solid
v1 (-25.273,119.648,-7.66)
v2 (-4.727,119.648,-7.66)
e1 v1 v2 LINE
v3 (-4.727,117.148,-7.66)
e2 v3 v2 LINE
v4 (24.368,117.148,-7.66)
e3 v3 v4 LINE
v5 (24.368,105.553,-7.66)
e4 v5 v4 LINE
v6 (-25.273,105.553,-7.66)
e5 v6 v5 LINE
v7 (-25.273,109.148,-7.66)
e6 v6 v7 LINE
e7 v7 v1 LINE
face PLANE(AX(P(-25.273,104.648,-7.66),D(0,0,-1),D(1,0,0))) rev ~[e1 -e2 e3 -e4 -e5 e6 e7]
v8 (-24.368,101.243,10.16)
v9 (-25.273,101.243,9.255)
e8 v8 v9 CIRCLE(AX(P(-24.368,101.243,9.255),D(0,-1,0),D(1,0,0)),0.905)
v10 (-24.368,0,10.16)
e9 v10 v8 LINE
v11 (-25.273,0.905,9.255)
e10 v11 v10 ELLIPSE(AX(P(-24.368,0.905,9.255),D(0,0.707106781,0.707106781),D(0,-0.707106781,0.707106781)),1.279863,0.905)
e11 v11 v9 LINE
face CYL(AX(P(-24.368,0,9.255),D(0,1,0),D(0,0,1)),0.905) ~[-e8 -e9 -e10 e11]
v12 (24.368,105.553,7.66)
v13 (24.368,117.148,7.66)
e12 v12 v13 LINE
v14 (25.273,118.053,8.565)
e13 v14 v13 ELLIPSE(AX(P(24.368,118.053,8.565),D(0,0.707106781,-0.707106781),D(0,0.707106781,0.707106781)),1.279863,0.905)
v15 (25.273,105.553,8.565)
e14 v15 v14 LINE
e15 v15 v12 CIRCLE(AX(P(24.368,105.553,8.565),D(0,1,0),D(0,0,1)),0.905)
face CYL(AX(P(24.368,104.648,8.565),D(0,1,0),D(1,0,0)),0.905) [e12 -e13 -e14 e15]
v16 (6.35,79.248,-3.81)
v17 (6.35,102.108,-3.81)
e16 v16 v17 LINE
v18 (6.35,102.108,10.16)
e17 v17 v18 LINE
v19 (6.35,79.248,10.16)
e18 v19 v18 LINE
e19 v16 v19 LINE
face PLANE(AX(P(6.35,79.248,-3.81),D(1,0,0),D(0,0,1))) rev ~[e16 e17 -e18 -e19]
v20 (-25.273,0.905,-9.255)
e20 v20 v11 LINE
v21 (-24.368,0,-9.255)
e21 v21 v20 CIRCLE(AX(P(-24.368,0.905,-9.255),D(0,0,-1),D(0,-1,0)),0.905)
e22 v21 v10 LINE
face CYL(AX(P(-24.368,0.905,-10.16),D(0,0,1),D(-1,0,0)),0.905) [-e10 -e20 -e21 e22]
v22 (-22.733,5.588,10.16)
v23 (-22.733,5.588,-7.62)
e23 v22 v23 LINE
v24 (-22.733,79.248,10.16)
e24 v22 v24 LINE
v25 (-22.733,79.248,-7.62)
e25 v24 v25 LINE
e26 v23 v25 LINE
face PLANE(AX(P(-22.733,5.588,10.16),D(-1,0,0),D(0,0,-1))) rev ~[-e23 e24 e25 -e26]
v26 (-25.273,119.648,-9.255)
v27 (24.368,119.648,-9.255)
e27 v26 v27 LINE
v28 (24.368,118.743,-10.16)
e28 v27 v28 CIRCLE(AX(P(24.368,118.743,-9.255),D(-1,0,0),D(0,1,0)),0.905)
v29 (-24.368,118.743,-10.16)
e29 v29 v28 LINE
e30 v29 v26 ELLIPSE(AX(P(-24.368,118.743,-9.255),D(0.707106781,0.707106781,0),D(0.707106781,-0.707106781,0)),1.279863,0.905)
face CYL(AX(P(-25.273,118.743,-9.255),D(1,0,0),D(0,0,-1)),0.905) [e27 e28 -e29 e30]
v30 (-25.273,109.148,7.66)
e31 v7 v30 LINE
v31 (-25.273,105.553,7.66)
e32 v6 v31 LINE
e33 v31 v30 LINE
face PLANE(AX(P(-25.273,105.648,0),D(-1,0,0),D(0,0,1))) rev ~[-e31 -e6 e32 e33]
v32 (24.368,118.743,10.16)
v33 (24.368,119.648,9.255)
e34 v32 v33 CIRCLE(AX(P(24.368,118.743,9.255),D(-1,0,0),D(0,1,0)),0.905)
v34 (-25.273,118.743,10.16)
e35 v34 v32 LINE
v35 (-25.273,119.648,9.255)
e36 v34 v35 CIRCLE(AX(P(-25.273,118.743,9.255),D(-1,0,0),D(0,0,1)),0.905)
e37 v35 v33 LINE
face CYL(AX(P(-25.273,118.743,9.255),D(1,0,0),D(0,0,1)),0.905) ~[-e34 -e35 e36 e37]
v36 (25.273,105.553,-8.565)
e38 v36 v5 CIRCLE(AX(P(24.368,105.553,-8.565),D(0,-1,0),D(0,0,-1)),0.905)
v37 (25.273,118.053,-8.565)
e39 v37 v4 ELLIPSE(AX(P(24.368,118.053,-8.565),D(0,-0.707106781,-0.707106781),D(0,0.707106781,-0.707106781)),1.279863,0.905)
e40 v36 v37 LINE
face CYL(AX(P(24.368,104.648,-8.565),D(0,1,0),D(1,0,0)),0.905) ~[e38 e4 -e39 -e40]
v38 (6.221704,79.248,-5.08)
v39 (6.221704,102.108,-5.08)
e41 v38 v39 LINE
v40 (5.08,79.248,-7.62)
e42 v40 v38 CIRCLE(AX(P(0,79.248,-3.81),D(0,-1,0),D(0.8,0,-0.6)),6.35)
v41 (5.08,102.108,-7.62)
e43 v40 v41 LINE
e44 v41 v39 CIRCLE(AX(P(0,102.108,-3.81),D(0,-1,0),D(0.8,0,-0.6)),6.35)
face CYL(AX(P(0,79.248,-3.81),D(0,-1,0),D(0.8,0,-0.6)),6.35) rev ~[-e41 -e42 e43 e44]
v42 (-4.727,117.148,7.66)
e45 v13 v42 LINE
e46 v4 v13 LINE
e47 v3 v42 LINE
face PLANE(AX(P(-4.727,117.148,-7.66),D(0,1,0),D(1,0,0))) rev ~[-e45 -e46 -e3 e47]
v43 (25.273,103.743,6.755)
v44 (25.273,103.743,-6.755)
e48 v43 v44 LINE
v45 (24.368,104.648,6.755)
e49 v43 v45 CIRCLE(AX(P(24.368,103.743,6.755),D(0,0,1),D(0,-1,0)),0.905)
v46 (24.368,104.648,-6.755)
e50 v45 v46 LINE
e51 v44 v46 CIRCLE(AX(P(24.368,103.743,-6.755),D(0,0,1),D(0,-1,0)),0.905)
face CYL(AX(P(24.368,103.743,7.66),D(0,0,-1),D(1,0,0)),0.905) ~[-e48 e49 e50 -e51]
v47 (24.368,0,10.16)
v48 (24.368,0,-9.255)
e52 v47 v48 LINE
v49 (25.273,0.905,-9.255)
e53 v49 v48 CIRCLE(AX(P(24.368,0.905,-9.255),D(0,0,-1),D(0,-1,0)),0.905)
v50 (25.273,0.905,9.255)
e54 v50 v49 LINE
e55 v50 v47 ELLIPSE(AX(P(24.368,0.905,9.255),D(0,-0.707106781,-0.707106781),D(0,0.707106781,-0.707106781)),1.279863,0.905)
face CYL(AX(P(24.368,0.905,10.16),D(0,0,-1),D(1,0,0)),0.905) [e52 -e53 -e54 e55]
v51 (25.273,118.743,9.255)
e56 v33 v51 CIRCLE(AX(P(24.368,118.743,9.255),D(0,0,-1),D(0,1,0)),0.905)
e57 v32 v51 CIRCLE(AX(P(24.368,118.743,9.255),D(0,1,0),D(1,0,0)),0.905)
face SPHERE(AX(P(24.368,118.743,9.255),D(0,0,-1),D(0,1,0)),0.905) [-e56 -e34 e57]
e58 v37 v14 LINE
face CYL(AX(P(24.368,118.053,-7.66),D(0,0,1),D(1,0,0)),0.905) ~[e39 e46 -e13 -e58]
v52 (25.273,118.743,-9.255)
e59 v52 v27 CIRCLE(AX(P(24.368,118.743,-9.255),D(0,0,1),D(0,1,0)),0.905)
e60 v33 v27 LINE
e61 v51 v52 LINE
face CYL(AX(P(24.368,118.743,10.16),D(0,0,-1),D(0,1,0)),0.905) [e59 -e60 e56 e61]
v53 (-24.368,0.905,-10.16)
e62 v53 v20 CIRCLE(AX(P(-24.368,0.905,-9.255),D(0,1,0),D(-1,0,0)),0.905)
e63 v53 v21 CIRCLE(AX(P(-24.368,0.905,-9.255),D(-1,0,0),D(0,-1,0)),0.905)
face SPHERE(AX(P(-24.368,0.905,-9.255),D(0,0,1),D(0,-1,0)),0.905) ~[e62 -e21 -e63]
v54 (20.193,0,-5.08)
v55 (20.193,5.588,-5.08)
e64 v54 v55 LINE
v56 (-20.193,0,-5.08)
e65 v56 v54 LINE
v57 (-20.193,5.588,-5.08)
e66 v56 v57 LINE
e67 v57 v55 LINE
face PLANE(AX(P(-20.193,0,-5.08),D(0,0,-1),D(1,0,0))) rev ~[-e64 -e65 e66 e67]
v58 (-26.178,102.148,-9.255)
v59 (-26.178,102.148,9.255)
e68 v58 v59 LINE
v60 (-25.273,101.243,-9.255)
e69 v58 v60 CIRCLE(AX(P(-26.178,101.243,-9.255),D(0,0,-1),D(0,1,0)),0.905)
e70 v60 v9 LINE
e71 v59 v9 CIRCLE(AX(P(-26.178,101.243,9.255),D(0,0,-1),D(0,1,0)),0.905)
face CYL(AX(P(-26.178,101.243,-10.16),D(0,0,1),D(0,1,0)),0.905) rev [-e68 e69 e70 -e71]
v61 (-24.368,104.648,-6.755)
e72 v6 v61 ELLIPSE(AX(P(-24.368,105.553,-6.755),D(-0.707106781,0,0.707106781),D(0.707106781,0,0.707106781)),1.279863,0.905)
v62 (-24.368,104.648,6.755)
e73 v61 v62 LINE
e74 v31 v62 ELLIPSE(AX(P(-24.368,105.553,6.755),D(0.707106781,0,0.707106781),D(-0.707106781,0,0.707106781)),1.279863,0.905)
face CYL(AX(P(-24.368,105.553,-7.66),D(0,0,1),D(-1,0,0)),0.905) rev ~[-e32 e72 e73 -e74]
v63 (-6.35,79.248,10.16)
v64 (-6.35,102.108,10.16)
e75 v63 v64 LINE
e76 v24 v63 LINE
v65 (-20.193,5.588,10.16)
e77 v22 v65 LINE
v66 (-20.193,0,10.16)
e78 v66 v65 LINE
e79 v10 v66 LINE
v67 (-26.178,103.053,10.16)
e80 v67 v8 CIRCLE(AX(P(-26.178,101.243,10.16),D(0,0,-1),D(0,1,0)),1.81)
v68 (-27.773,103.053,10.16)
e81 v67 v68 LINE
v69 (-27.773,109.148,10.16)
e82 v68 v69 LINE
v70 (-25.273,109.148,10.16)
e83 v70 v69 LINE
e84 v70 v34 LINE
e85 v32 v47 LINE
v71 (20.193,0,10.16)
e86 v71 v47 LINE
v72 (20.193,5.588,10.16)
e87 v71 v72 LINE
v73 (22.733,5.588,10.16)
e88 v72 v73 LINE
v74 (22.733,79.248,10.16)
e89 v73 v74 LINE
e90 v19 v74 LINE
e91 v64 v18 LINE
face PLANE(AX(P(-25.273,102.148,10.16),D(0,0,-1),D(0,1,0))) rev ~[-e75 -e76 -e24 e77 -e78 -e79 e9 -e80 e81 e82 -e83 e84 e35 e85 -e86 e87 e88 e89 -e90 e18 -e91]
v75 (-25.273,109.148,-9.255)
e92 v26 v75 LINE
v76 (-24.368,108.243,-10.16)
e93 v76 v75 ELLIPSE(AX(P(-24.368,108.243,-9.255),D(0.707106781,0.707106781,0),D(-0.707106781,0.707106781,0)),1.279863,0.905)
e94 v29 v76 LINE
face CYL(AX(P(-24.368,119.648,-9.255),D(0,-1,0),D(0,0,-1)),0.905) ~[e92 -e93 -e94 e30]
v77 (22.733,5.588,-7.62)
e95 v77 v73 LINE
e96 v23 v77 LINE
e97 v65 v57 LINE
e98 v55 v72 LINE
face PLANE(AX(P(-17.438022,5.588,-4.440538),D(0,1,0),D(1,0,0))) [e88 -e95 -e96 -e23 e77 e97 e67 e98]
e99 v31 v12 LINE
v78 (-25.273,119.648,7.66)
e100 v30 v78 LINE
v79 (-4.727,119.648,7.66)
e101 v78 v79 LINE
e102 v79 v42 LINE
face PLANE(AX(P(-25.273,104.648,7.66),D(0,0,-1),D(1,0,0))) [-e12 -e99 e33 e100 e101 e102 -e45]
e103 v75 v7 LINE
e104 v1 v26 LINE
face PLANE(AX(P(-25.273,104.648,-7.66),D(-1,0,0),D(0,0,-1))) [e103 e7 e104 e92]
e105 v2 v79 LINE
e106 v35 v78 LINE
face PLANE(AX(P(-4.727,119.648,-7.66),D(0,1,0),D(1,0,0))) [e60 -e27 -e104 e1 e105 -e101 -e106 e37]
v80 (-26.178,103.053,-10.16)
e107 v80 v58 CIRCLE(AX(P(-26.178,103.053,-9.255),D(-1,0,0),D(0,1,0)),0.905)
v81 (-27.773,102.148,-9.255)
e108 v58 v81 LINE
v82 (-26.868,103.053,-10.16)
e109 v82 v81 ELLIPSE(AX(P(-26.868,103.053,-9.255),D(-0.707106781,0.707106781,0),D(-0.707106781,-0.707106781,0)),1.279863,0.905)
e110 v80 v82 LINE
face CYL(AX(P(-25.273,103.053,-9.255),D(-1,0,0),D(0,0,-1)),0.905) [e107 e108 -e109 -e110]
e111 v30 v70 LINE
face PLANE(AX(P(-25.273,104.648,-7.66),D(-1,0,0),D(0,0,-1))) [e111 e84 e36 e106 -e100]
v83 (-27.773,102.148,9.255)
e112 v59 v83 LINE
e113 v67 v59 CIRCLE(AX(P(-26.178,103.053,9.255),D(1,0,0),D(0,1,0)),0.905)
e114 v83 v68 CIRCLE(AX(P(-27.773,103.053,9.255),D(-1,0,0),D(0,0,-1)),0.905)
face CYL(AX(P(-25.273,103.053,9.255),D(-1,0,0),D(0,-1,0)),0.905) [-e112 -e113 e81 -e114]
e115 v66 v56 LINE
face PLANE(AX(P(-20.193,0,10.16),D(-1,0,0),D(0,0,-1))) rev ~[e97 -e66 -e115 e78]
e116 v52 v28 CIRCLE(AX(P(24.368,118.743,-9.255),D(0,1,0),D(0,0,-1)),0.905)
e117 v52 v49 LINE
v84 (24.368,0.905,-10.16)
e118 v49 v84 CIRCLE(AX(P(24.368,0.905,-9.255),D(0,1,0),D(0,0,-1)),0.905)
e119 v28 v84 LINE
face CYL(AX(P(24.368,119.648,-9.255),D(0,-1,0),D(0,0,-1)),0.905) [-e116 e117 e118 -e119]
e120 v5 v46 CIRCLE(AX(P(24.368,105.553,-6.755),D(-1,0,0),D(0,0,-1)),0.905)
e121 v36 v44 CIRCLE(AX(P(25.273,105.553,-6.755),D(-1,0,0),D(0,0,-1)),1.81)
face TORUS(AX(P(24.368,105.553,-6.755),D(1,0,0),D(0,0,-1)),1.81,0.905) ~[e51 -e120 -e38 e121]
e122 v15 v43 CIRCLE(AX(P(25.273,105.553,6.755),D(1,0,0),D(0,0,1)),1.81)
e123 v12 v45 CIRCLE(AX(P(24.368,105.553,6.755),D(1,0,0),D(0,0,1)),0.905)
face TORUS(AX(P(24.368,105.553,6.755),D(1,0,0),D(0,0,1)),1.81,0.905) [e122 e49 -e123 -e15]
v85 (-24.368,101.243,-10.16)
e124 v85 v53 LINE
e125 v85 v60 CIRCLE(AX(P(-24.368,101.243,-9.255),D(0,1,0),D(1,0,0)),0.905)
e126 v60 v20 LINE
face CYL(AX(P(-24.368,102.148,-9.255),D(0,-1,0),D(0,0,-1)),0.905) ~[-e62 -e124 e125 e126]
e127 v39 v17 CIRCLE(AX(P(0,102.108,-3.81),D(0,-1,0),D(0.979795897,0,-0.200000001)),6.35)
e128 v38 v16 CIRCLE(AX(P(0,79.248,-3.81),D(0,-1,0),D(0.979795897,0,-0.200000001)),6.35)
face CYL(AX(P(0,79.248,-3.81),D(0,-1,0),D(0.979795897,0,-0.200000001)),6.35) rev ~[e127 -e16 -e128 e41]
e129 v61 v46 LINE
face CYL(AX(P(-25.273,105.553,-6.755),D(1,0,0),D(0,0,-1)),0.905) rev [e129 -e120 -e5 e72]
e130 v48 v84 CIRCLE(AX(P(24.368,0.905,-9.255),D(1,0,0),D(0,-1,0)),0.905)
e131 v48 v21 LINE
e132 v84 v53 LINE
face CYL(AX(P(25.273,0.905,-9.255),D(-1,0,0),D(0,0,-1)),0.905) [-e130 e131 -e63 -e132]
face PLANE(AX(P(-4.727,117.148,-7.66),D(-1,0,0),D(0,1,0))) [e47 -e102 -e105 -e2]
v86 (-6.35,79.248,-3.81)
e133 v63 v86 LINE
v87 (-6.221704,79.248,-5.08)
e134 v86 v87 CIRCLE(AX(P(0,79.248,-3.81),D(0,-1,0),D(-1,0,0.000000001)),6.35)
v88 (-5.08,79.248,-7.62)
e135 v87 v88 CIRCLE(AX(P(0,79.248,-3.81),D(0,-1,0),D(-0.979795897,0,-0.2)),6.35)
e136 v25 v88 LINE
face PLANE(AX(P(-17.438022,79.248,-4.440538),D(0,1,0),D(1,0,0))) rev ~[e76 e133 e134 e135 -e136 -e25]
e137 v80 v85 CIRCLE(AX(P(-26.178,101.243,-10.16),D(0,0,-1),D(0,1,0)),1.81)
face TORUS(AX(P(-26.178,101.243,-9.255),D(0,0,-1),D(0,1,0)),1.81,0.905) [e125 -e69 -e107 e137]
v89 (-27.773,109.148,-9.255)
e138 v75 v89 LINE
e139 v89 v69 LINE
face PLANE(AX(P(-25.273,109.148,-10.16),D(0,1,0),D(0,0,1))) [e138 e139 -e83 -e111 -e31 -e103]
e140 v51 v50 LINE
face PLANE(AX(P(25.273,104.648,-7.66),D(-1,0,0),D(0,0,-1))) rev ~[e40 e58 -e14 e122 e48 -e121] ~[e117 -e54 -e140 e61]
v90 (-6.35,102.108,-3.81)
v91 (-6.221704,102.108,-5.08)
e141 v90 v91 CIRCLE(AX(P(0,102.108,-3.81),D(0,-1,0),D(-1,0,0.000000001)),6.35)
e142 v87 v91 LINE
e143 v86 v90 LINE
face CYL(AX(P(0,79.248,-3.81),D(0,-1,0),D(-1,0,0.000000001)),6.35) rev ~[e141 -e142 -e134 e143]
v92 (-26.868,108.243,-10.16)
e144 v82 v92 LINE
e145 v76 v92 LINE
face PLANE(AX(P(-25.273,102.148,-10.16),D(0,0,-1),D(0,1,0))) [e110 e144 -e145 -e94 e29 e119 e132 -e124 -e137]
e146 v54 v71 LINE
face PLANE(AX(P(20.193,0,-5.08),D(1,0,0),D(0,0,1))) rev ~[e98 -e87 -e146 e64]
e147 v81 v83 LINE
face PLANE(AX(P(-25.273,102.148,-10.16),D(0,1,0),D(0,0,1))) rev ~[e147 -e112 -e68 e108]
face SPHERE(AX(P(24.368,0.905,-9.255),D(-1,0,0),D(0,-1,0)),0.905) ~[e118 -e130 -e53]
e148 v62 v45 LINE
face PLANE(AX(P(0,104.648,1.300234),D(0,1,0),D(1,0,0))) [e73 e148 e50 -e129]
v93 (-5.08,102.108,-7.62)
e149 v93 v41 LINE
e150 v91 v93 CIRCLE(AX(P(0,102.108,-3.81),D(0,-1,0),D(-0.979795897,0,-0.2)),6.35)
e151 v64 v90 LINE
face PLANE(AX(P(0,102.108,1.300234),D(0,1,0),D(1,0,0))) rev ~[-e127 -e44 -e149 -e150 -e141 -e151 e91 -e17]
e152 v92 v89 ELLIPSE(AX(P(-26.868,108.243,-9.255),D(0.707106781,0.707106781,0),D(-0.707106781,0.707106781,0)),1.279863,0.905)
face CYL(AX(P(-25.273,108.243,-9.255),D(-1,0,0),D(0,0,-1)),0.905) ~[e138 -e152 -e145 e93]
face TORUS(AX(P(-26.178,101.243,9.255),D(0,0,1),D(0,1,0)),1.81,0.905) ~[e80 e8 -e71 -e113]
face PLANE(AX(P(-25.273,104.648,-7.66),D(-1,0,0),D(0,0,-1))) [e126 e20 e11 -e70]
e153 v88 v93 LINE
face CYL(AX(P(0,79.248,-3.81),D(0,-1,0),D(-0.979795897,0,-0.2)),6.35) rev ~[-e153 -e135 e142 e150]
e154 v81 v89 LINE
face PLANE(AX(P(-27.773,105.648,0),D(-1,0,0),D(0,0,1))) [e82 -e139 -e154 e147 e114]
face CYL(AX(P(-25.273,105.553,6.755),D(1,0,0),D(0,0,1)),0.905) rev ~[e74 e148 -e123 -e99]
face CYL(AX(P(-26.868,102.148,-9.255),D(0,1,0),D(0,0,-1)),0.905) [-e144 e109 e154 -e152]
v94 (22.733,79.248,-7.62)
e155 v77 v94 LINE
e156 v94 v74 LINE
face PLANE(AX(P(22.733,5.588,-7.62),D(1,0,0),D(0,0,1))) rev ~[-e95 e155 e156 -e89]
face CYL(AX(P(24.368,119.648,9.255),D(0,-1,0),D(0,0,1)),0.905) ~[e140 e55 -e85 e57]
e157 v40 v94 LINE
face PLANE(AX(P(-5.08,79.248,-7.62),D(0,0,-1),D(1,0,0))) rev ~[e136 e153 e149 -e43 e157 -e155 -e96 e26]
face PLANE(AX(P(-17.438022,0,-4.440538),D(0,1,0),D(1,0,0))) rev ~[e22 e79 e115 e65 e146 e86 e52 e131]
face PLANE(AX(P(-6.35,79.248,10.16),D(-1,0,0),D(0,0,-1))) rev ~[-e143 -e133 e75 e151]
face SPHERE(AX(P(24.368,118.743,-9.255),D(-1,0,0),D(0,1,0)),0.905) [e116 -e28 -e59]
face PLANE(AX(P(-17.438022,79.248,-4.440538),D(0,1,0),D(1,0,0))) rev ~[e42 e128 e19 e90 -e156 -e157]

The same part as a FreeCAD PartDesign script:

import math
import FreeCAD as App
import Part
import Sketcher
Q = App.Units.Quantity


def edges_at(feature, points):
    """Names of the edges that pass closest to the given points."""
    edges = feature.Shape.Edges
    near = lambda p: min(range(len(edges)), key=lambda i: edges[i].distToShape(Part.Vertex(*p))[0])
    return sorted({f"Edge{near(p) + 1}" for p in points})

doc = App.newDocument("Part")
body = doc.addObject("PartDesign::Body", "Body")

# Sketch on XZ plane
sketch1 = doc.addObject("Sketcher::SketchObject", "Sketch")
body.addObject(sketch1)
sketch1.AttachmentSupport = (doc.XZ_Plane, [""])
sketch1.MapMode = "FlatFace"
sketch1.addGeometry(Part.LineSegment(App.Vector(-20, -5, 0), App.Vector(20, -5, 0)), False)
sketch1.addGeometry(Part.LineSegment(App.Vector(20, -5, 0), App.Vector(20, 10, 0)), False)
sketch1.addGeometry(Part.LineSegment(App.Vector(20, 10, 0), App.Vector(25, 10, 0)), False)
sketch1.addGeometry(Part.LineSegment(App.Vector(25, 10, 0), App.Vector(25, -10, 0)), False)
sketch1.addGeometry(Part.LineSegment(App.Vector(25, -10, 0), App.Vector(-25, -10, 0)), False)
sketch1.addGeometry(Part.LineSegment(App.Vector(-25, -10, 0), App.Vector(-25, 10, 0)), False)
sketch1.addGeometry(Part.LineSegment(App.Vector(-25, 10, 0), App.Vector(-20, 10, 0)), False)
sketch1.addGeometry(Part.LineSegment(App.Vector(-20, 10, 0), App.Vector(-20, -5, 0)), False)
sketch1.addConstraint(Sketcher.Constraint("Coincident", 0, 2, 1, 1))
sketch1.addConstraint(Sketcher.Constraint("Coincident", 1, 2, 2, 1))
sketch1.addConstraint(Sketcher.Constraint("Coincident", 2, 2, 3, 1))
sketch1.addConstraint(Sketcher.Constraint("Coincident", 3, 2, 4, 1))
sketch1.addConstraint(Sketcher.Constraint("Coincident", 4, 2, 5, 1))
sketch1.addConstraint(Sketcher.Constraint("Coincident", 5, 2, 6, 1))
sketch1.addConstraint(Sketcher.Constraint("Coincident", 6, 2, 7, 1))
sketch1.addConstraint(Sketcher.Constraint("Coincident", 7, 2, 0, 1))
sketch1.addConstraint(Sketcher.Constraint("Horizontal", 0))
sketch1.addConstraint(Sketcher.Constraint("Vertical", 1))
sketch1.addConstraint(Sketcher.Constraint("Horizontal", 2))
sketch1.addConstraint(Sketcher.Constraint("Vertical", 3))
sketch1.addConstraint(Sketcher.Constraint("Horizontal", 4))
sketch1.addConstraint(Sketcher.Constraint("Vertical", 5))
sketch1.addConstraint(Sketcher.Constraint("Horizontal", 6))
sketch1.addConstraint(Sketcher.Constraint("Vertical", 7))
sketch1.addConstraint(Sketcher.Constraint("Symmetric", 2, 2, 4, 2, -1, 1))
sketch1.addConstraint(Sketcher.Constraint("Symmetric", 1, 2, 6, 2, -2))
sketch1.addConstraint(Sketcher.Constraint("DistanceX", 2, 1, 2, 2, Q("0.2 in")))
sketch1.addConstraint(Sketcher.Constraint("DistanceY", 1, 1, 1, 2, Q("0.6 in")))
sketch1.addConstraint(Sketcher.Constraint("DistanceY", 3, 2, 3, 1, Q("0.8 in")))
sketch1.addConstraint(Sketcher.Constraint("DistanceX", 0, 1, 0, 2, Q("1.59 in")))
pad1 = doc.addObject("PartDesign::Pad", "Pad")
body.addObject(pad1)
pad1.Profile = sketch1
pad1.Length = Q("0.22 in")
pad1.Reversed = True

# Sketch on XZ plane
sketch2 = doc.addObject("Sketcher::SketchObject", "Sketch001")
body.addObject(sketch2)
sketch2.AttachmentSupport = (doc.XZ_Plane, [""])
sketch2.MapMode = "FlatFace"
sketch2.AttachmentOffset = App.Placement(App.Vector(0, 0, -0.22 * 25.4), App.Rotation())
sketch2.addGeometry(Part.LineSegment(App.Vector(-22.7, 10.2, 0), App.Vector(-22.7, -7.6, 0)), False)
sketch2.addGeometry(Part.LineSegment(App.Vector(-22.7, -7.6, 0), App.Vector(22.7, -7.6, 0)), False)
sketch2.addGeometry(Part.LineSegment(App.Vector(22.7, -7.6, 0), App.Vector(22.7, 10.2, 0)), False)
sketch2.addGeometry(Part.LineSegment(App.Vector(22.7, 10.2, 0), App.Vector(25.3, 10.2, 0)), False)
sketch2.addGeometry(Part.LineSegment(App.Vector(25.3, 10.2, 0), App.Vector(25.3, -10.2, 0)), False)
sketch2.addGeometry(Part.LineSegment(App.Vector(25.3, -10.2, 0), App.Vector(-25.3, -10.2, 0)), False)
sketch2.addGeometry(Part.LineSegment(App.Vector(-25.3, -10.2, 0), App.Vector(-25.3, 10.2, 0)), False)
sketch2.addGeometry(Part.LineSegment(App.Vector(-25.3, 10.2, 0), App.Vector(-22.7, 10.2, 0)), False)
sketch2.addConstraint(Sketcher.Constraint("Coincident", 0, 2, 1, 1))
sketch2.addConstraint(Sketcher.Constraint("Coincident", 1, 2, 2, 1))
sketch2.addConstraint(Sketcher.Constraint("Coincident", 2, 2, 3, 1))
sketch2.addConstraint(Sketcher.Constraint("Coincident", 3, 2, 4, 1))
sketch2.addConstraint(Sketcher.Constraint("Coincident", 4, 2, 5, 1))
sketch2.addConstraint(Sketcher.Constraint("Coincident", 5, 2, 6, 1))
sketch2.addConstraint(Sketcher.Constraint("Coincident", 6, 2, 7, 1))
sketch2.addConstraint(Sketcher.Constraint("Coincident", 7, 2, 0, 1))
sketch2.addConstraint(Sketcher.Constraint("Vertical", 0))
sketch2.addConstraint(Sketcher.Constraint("Horizontal", 1))
sketch2.addConstraint(Sketcher.Constraint("Vertical", 2))
sketch2.addConstraint(Sketcher.Constraint("Horizontal", 3))
sketch2.addConstraint(Sketcher.Constraint("Vertical", 4))
sketch2.addConstraint(Sketcher.Constraint("Horizontal", 5))
sketch2.addConstraint(Sketcher.Constraint("Vertical", 6))
sketch2.addConstraint(Sketcher.Constraint("Horizontal", 7))
sketch2.addConstraint(Sketcher.Constraint("Symmetric", 3, 2, 5, 2, -1, 1))
sketch2.addConstraint(Sketcher.Constraint("Symmetric", 2, 2, 7, 2, -2))
sketch2.addConstraint(Sketcher.Constraint("DistanceX", 3, 1, 3, 2, Q("0.1 in")))
sketch2.addConstraint(Sketcher.Constraint("DistanceY", 0, 2, 0, 1, Q("0.7 in")))
sketch2.addConstraint(Sketcher.Constraint("DistanceY", 4, 2, 4, 1, Q("0.8 in")))
sketch2.addConstraint(Sketcher.Constraint("DistanceX", 1, 1, 1, 2, Q("1.79 in")))
pad2 = doc.addObject("PartDesign::Pad", "Pad001")
body.addObject(pad2)
pad2.Profile = sketch2
pad2.Length = Q("2.9 in")
pad2.Reversed = True

# Sketch on XZ plane
sketch3 = doc.addObject("Sketcher::SketchObject", "Sketch002")
body.addObject(sketch3)
sketch3.AttachmentSupport = (doc.XZ_Plane, [""])
sketch3.MapMode = "FlatFace"
sketch3.AttachmentOffset = App.Placement(App.Vector(0, 0, -3.12 * 25.4), App.Rotation())
sketch3.addGeometry(Part.ArcOfCircle(Part.Circle(App.Vector(0, -3.8, 0), App.Vector(0, 0, 1), 6.3), math.radians(180), math.radians(191.54)), False)
sketch3.addGeometry(Part.ArcOfCircle(Part.Circle(App.Vector(0, -3.8, 0), App.Vector(0, 0, 1), 6.4), math.radians(-168), math.radians(-143)), False)
sketch3.addGeometry(Part.LineSegment(App.Vector(-5.1, -7.6, 0), App.Vector(5.1, -7.6, 0)), False)
sketch3.addGeometry(Part.ArcOfCircle(Part.Circle(App.Vector(0, -3.8, 0), App.Vector(0, 0, 1), 6.4), math.radians(-37), math.radians(-12)), False)
sketch3.addGeometry(Part.ArcOfCircle(Part.Circle(App.Vector(0, -3.8, 0), App.Vector(0, 0, 1), 6.3), math.radians(-11.54), math.radians(0)), False)
sketch3.addGeometry(Part.LineSegment(App.Vector(6.3, -3.8, 0), App.Vector(6.3, 10.2, 0)), False)
sketch3.addGeometry(Part.LineSegment(App.Vector(6.3, 10.2, 0), App.Vector(25.3, 10.2, 0)), False)
sketch3.addGeometry(Part.LineSegment(App.Vector(25.3, 10.2, 0), App.Vector(25.3, -10.2, 0)), False)
sketch3.addGeometry(Part.LineSegment(App.Vector(25.3, -10.2, 0), App.Vector(-25.3, -10.2, 0)), False)
sketch3.addGeometry(Part.LineSegment(App.Vector(-25.3, -10.2, 0), App.Vector(-25.3, 10.2, 0)), False)
sketch3.addGeometry(Part.LineSegment(App.Vector(-25.3, 10.2, 0), App.Vector(-6.3, 10.2, 0)), False)
sketch3.addGeometry(Part.LineSegment(App.Vector(-6.3, 10.2, 0), App.Vector(-6.3, -3.8, 0)), False)
sketch3.addConstraint(Sketcher.Constraint("Tangent", 0, 2, 1, 1))
sketch3.addConstraint(Sketcher.Constraint("Coincident", 1, 2, 2, 1))
sketch3.addConstraint(Sketcher.Constraint("Coincident", 2, 2, 3, 1))
sketch3.addConstraint(Sketcher.Constraint("Tangent", 3, 2, 4, 1))
sketch3.addConstraint(Sketcher.Constraint("Tangent", 4, 2, 5, 1))
sketch3.addConstraint(Sketcher.Constraint("Coincident", 5, 2, 6, 1))
sketch3.addConstraint(Sketcher.Constraint("Coincident", 6, 2, 7, 1))
sketch3.addConstraint(Sketcher.Constraint("Coincident", 7, 2, 8, 1))
sketch3.addConstraint(Sketcher.Constraint("Coincident", 8, 2, 9, 1))
sketch3.addConstraint(Sketcher.Constraint("Coincident", 9, 2, 10, 1))
sketch3.addConstraint(Sketcher.Constraint("Coincident", 10, 2, 11, 1))
sketch3.addConstraint(Sketcher.Constraint("Tangent", 11, 2, 0, 1))
sketch3.addConstraint(Sketcher.Constraint("Horizontal", 2))
sketch3.addConstraint(Sketcher.Constraint("Vertical", 5))
sketch3.addConstraint(Sketcher.Constraint("Horizontal", 6))
sketch3.addConstraint(Sketcher.Constraint("Vertical", 7))
sketch3.addConstraint(Sketcher.Constraint("Horizontal", 8))
sketch3.addConstraint(Sketcher.Constraint("Vertical", 9))
sketch3.addConstraint(Sketcher.Constraint("Horizontal", 10))
sketch3.addConstraint(Sketcher.Constraint("Vertical", 11))
sketch3.addConstraint(Sketcher.Constraint("Coincident", 3, 3, 0, 3))
sketch3.addConstraint(Sketcher.Constraint("Equal", 0, 1))
sketch3.addConstraint(Sketcher.Constraint("Equal", 1, 3))
sketch3.addConstraint(Sketcher.Constraint("Equal", 3, 4))
sketch3.addConstraint(Sketcher.Constraint("Symmetric", 6, 2, 8, 2, -1, 1))
sketch3.addConstraint(Sketcher.Constraint("Symmetric", 0, 2, 3, 2, -2))
sketch3.addConstraint(Sketcher.Constraint("Horizontal", 6, 2, 9, 2))
sketch3.addConstraint(Sketcher.Constraint("Radius", 0, Q("0.25 in")))
sketch3.addConstraint(Sketcher.Constraint("DistanceX", 2, 1, 2, 2, Q("0.4 in")))
sketch3.addConstraint(Sketcher.Constraint("DistanceY", 7, 2, 7, 1, Q("0.8 in")))
sketch3.addConstraint(Sketcher.Constraint("DistanceX", 8, 2, 8, 1, Q("1.99 in")))
sketch3.addConstraint(Sketcher.Constraint("DistanceY", 5, 1, 5, 2, Q("0.55 in")))
sketch3.addConstraint(Sketcher.Constraint("DistanceY", 0, 2, -1, 1, Q("0.2 in")))
pad3 = doc.addObject("PartDesign::Pad", "Pad002")
body.addObject(pad3)
pad3.Profile = sketch3
pad3.Length = Q("0.9 in")
pad3.Reversed = True

# Sketch on XZ plane
sketch4 = doc.addObject("Sketcher::SketchObject", "Sketch003")
body.addObject(sketch4)
sketch4.AttachmentSupport = (doc.XZ_Plane, [""])
sketch4.MapMode = "FlatFace"
sketch4.AttachmentOffset = App.Placement(App.Vector(0, 0, -4.02 * 25.4), App.Rotation())
sketch4.addGeometry(Part.LineSegment(App.Vector(25, 10, 0), App.Vector(25, -10, 0)), False)
sketch4.addGeometry(Part.LineSegment(App.Vector(25, -10, 0), App.Vector(-25, -10, 0)), False)
sketch4.addGeometry(Part.LineSegment(App.Vector(-25, -10, 0), App.Vector(-25, 10, 0)), False)
sketch4.addGeometry(Part.LineSegment(App.Vector(-25, 10, 0), App.Vector(25, 10, 0)), False)
sketch4.addConstraint(Sketcher.Constraint("Coincident", 0, 2, 1, 1))
sketch4.addConstraint(Sketcher.Constraint("Coincident", 1, 2, 2, 1))
sketch4.addConstraint(Sketcher.Constraint("Coincident", 2, 2, 3, 1))
sketch4.addConstraint(Sketcher.Constraint("Coincident", 3, 2, 0, 1))
sketch4.addConstraint(Sketcher.Constraint("Vertical", 0))
sketch4.addConstraint(Sketcher.Constraint("Horizontal", 1))
sketch4.addConstraint(Sketcher.Constraint("Vertical", 2))
sketch4.addConstraint(Sketcher.Constraint("Horizontal", 3))
sketch4.addConstraint(Sketcher.Constraint("Symmetric", 0, 2, 2, 2, -1, 1))
sketch4.addConstraint(Sketcher.Constraint("DistanceY", 0, 2, 0, 1, Q("0.8 in")))
sketch4.addConstraint(Sketcher.Constraint("DistanceX", 1, 2, 1, 1, Q("1.99 in")))
pad4 = doc.addObject("PartDesign::Pad", "Pad003")
body.addObject(pad4)
pad4.Profile = sketch4
pad4.Length = Q("0.1 in")
pad4.Reversed = True

# Sketch on XZ plane
sketch5 = doc.addObject("Sketcher::SketchObject", "Sketch004")
body.addObject(sketch5)
sketch5.AttachmentSupport = (doc.XZ_Plane, [""])
sketch5.MapMode = "FlatFace"
sketch5.AttachmentOffset = App.Placement(App.Vector(0, 0, -4.12 * 25.4), App.Rotation())
sketch5.addGeometry(Part.LineSegment(App.Vector(-25.3, -10.2, 0), App.Vector(-25.3, -7.7, 0)), False)
sketch5.addGeometry(Part.LineSegment(App.Vector(-25.3, -7.7, 0), App.Vector(25.3, -7.7, 0)), False)
sketch5.addGeometry(Part.LineSegment(App.Vector(25.3, -7.7, 0), App.Vector(25.3, -10.2, 0)), False)
sketch5.addGeometry(Part.LineSegment(App.Vector(25.3, -10.2, 0), App.Vector(-25.3, -10.2, 0)), False)
sketch5.addGeometry(Part.LineSegment(App.Vector(-25.3, 7.7, 0), App.Vector(-25.3, 10.2, 0)), False)
sketch5.addGeometry(Part.LineSegment(App.Vector(-25.3, 10.2, 0), App.Vector(25.3, 10.2, 0)), False)
sketch5.addGeometry(Part.LineSegment(App.Vector(25.3, 10.2, 0), App.Vector(25.3, 7.7, 0)), False)
sketch5.addGeometry(Part.LineSegment(App.Vector(25.3, 7.7, 0), App.Vector(-25.3, 7.7, 0)), False)
sketch5.addConstraint(Sketcher.Constraint("Coincident", 0, 2, 1, 1))
sketch5.addConstraint(Sketcher.Constraint("Coincident", 1, 2, 2, 1))
sketch5.addConstraint(Sketcher.Constraint("Coincident", 2, 2, 3, 1))
sketch5.addConstraint(Sketcher.Constraint("Coincident", 3, 2, 0, 1))
sketch5.addConstraint(Sketcher.Constraint("Coincident", 4, 2, 5, 1))
sketch5.addConstraint(Sketcher.Constraint("Coincident", 5, 2, 6, 1))
sketch5.addConstraint(Sketcher.Constraint("Coincident", 6, 2, 7, 1))
sketch5.addConstraint(Sketcher.Constraint("Coincident", 7, 2, 4, 1))
sketch5.addConstraint(Sketcher.Constraint("Vertical", 0))
sketch5.addConstraint(Sketcher.Constraint("Horizontal", 1))
sketch5.addConstraint(Sketcher.Constraint("Vertical", 2))
sketch5.addConstraint(Sketcher.Constraint("Horizontal", 3))
sketch5.addConstraint(Sketcher.Constraint("Vertical", 4))
sketch5.addConstraint(Sketcher.Constraint("Horizontal", 5))
sketch5.addConstraint(Sketcher.Constraint("Vertical", 6))
sketch5.addConstraint(Sketcher.Constraint("Horizontal", 7))
sketch5.addConstraint(Sketcher.Constraint("Symmetric", 2, 2, 4, 2, -1, 1))
sketch5.addConstraint(Sketcher.Constraint("Symmetric", 0, 2, 6, 2, -1, 1))
sketch5.addConstraint(Sketcher.Constraint("Vertical", 3, 2, 4, 2))
sketch5.addConstraint(Sketcher.Constraint("DistanceX", 1, 1, 1, 2, Q("1.99 in")))
sketch5.addConstraint(Sketcher.Constraint("DistanceY", 2, 2, -1, 1, Q("0.4 in")))
sketch5.addConstraint(Sketcher.Constraint("DistanceY", 0, 1, 0, 2, Q("2.5 mm")))
pad5 = doc.addObject("PartDesign::Pad", "Pad004")
body.addObject(pad5)
pad5.Profile = sketch5
pad5.Length = 15
pad5.Reversed = True

# Sketch on XY plane
sketch6 = doc.addObject("Sketcher::SketchObject", "Sketch005")
body.addObject(sketch6)
sketch6.AttachmentSupport = (doc.XY_Plane, [""])
sketch6.MapMode = "FlatFace"
sketch6.AttachmentOffset = App.Placement(App.Vector(0, 0, -7.66), App.Rotation())
sketch6.addGeometry(Part.LineSegment(App.Vector(-4.7, 119.6, 0), App.Vector(-4.7, 117.1, 0)), False)
sketch6.addGeometry(Part.LineSegment(App.Vector(-4.7, 117.1, 0), App.Vector(25.3, 117.1, 0)), False)
sketch6.addGeometry(Part.LineSegment(App.Vector(25.3, 117.1, 0), App.Vector(25.3, 119.6, 0)), False)
sketch6.addGeometry(Part.LineSegment(App.Vector(25.3, 119.6, 0), App.Vector(-4.7, 119.6, 0)), False)
sketch6.addConstraint(Sketcher.Constraint("Coincident", 0, 2, 1, 1))
sketch6.addConstraint(Sketcher.Constraint("Coincident", 1, 2, 2, 1))
sketch6.addConstraint(Sketcher.Constraint("Coincident", 2, 2, 3, 1))
sketch6.addConstraint(Sketcher.Constraint("Coincident", 3, 2, 0, 1))
sketch6.addConstraint(Sketcher.Constraint("Vertical", 0))
sketch6.addConstraint(Sketcher.Constraint("Horizontal", 1))
sketch6.addConstraint(Sketcher.Constraint("Vertical", 2))
sketch6.addConstraint(Sketcher.Constraint("Horizontal", 3))
sketch6.addConstraint(Sketcher.Constraint("DistanceX", -1, 1, 1, 2, Q("0.995 in")))
sketch6.addConstraint(Sketcher.Constraint("DistanceX", 1, 1, 1, 2, Q("30 mm")))
sketch6.addConstraint(Sketcher.Constraint("DistanceY", 0, 2, 0, 1, Q("2.5 mm")))
sketch6.addConstraint(Sketcher.Constraint("DistanceY", -1, 1, 0, 2, Q("117.148 mm")))
pad6 = doc.addObject("PartDesign::Pad", "Pad005")
body.addObject(pad6)
pad6.Profile = sketch6
pad6.Type = "UpToFirst"

# Sketch on YZ plane
sketch7 = doc.addObject("Sketcher::SketchObject", "Sketch006")
body.addObject(sketch7)
sketch7.AttachmentSupport = (doc.YZ_Plane, [""])
sketch7.MapMode = "FlatFace"
sketch7.AttachmentOffset = App.Placement(App.Vector(0, 0, -0.995 * 25.4), App.Rotation())
sketch7.addGeometry(Part.LineSegment(App.Vector(109, -10, 0), App.Vector(102, -10, 0)), False)
sketch7.addGeometry(Part.LineSegment(App.Vector(102, -10, 0), App.Vector(102, 10, 0)), False)
sketch7.addGeometry(Part.LineSegment(App.Vector(102, 10, 0), App.Vector(109, 10, 0)), False)
sketch7.addGeometry(Part.LineSegment(App.Vector(109, 10, 0), App.Vector(109, -10, 0)), False)
sketch7.addConstraint(Sketcher.Constraint("Coincident", 0, 2, 1, 1))
sketch7.addConstraint(Sketcher.Constraint("Coincident", 1, 2, 2, 1))
sketch7.addConstraint(Sketcher.Constraint("Coincident", 2, 2, 3, 1))
sketch7.addConstraint(Sketcher.Constraint("Coincident", 3, 2, 0, 1))
sketch7.addConstraint(Sketcher.Constraint("Horizontal", 0))
sketch7.addConstraint(Sketcher.Constraint("Vertical", 1))
sketch7.addConstraint(Sketcher.Constraint("Horizontal", 2))
sketch7.addConstraint(Sketcher.Constraint("Vertical", 3))
sketch7.addConstraint(Sketcher.Constraint("DistanceY", 1, 1, 1, 2, Q("0.8 in")))
sketch7.addConstraint(Sketcher.Constraint("DistanceY", 0, 2, -1, 1, Q("0.4 in")))
sketch7.addConstraint(Sketcher.Constraint("DistanceX", 0, 2, 0, 1, Q("7 mm")))
sketch7.addConstraint(Sketcher.Constraint("DistanceX", -1, 1, 0, 2, Q("102.148 mm")))
pad7 = doc.addObject("PartDesign::Pad", "Pad006")
body.addObject(pad7)
pad7.Profile = sketch7
pad7.Length = 2.5
pad7.Reversed = True
doc.recompute()

fillet = doc.addObject("PartDesign::Fillet", "Fillet")
body.addObject(fillet)
fillet.Base = (pad7, edges_at(pad7, [
    (-25.273, 104.648, 0),
    (25.273, 104.648, 0),
    (0, 104.648, -7.66),
    (0, 119.648, -10.16),
    (25.273, 119.648, 0),
    (0, 104.648, 7.66),
    (0, 119.648, 10.16),
    (-25.273, 0, 0),
    (0, 0, -10.16),
    (25.273, 0, 0),
    (25.273, 110.898, -7.66),
    (25.273, 110.898, 7.66),
    (25.273, 117.148, 0),
    (-25.273, 51.074, 10.16),
    (-25.273, 51.074, -10.16),
    (-26.523, 109.148, -10.16),
    (-25.273, 102.148, 0),
    (-26.523, 102.148, -10.16),
    (-26.523, 102.148, 10.16),
    (-27.773, 105.648, -10.16),
    (-25.273, 114.398, -10.16),
    (25.273, 59.824, -10.16),
    (25.273, 59.824, 10.16),
]))
fillet.Radius = 0.905

doc.recompute()
